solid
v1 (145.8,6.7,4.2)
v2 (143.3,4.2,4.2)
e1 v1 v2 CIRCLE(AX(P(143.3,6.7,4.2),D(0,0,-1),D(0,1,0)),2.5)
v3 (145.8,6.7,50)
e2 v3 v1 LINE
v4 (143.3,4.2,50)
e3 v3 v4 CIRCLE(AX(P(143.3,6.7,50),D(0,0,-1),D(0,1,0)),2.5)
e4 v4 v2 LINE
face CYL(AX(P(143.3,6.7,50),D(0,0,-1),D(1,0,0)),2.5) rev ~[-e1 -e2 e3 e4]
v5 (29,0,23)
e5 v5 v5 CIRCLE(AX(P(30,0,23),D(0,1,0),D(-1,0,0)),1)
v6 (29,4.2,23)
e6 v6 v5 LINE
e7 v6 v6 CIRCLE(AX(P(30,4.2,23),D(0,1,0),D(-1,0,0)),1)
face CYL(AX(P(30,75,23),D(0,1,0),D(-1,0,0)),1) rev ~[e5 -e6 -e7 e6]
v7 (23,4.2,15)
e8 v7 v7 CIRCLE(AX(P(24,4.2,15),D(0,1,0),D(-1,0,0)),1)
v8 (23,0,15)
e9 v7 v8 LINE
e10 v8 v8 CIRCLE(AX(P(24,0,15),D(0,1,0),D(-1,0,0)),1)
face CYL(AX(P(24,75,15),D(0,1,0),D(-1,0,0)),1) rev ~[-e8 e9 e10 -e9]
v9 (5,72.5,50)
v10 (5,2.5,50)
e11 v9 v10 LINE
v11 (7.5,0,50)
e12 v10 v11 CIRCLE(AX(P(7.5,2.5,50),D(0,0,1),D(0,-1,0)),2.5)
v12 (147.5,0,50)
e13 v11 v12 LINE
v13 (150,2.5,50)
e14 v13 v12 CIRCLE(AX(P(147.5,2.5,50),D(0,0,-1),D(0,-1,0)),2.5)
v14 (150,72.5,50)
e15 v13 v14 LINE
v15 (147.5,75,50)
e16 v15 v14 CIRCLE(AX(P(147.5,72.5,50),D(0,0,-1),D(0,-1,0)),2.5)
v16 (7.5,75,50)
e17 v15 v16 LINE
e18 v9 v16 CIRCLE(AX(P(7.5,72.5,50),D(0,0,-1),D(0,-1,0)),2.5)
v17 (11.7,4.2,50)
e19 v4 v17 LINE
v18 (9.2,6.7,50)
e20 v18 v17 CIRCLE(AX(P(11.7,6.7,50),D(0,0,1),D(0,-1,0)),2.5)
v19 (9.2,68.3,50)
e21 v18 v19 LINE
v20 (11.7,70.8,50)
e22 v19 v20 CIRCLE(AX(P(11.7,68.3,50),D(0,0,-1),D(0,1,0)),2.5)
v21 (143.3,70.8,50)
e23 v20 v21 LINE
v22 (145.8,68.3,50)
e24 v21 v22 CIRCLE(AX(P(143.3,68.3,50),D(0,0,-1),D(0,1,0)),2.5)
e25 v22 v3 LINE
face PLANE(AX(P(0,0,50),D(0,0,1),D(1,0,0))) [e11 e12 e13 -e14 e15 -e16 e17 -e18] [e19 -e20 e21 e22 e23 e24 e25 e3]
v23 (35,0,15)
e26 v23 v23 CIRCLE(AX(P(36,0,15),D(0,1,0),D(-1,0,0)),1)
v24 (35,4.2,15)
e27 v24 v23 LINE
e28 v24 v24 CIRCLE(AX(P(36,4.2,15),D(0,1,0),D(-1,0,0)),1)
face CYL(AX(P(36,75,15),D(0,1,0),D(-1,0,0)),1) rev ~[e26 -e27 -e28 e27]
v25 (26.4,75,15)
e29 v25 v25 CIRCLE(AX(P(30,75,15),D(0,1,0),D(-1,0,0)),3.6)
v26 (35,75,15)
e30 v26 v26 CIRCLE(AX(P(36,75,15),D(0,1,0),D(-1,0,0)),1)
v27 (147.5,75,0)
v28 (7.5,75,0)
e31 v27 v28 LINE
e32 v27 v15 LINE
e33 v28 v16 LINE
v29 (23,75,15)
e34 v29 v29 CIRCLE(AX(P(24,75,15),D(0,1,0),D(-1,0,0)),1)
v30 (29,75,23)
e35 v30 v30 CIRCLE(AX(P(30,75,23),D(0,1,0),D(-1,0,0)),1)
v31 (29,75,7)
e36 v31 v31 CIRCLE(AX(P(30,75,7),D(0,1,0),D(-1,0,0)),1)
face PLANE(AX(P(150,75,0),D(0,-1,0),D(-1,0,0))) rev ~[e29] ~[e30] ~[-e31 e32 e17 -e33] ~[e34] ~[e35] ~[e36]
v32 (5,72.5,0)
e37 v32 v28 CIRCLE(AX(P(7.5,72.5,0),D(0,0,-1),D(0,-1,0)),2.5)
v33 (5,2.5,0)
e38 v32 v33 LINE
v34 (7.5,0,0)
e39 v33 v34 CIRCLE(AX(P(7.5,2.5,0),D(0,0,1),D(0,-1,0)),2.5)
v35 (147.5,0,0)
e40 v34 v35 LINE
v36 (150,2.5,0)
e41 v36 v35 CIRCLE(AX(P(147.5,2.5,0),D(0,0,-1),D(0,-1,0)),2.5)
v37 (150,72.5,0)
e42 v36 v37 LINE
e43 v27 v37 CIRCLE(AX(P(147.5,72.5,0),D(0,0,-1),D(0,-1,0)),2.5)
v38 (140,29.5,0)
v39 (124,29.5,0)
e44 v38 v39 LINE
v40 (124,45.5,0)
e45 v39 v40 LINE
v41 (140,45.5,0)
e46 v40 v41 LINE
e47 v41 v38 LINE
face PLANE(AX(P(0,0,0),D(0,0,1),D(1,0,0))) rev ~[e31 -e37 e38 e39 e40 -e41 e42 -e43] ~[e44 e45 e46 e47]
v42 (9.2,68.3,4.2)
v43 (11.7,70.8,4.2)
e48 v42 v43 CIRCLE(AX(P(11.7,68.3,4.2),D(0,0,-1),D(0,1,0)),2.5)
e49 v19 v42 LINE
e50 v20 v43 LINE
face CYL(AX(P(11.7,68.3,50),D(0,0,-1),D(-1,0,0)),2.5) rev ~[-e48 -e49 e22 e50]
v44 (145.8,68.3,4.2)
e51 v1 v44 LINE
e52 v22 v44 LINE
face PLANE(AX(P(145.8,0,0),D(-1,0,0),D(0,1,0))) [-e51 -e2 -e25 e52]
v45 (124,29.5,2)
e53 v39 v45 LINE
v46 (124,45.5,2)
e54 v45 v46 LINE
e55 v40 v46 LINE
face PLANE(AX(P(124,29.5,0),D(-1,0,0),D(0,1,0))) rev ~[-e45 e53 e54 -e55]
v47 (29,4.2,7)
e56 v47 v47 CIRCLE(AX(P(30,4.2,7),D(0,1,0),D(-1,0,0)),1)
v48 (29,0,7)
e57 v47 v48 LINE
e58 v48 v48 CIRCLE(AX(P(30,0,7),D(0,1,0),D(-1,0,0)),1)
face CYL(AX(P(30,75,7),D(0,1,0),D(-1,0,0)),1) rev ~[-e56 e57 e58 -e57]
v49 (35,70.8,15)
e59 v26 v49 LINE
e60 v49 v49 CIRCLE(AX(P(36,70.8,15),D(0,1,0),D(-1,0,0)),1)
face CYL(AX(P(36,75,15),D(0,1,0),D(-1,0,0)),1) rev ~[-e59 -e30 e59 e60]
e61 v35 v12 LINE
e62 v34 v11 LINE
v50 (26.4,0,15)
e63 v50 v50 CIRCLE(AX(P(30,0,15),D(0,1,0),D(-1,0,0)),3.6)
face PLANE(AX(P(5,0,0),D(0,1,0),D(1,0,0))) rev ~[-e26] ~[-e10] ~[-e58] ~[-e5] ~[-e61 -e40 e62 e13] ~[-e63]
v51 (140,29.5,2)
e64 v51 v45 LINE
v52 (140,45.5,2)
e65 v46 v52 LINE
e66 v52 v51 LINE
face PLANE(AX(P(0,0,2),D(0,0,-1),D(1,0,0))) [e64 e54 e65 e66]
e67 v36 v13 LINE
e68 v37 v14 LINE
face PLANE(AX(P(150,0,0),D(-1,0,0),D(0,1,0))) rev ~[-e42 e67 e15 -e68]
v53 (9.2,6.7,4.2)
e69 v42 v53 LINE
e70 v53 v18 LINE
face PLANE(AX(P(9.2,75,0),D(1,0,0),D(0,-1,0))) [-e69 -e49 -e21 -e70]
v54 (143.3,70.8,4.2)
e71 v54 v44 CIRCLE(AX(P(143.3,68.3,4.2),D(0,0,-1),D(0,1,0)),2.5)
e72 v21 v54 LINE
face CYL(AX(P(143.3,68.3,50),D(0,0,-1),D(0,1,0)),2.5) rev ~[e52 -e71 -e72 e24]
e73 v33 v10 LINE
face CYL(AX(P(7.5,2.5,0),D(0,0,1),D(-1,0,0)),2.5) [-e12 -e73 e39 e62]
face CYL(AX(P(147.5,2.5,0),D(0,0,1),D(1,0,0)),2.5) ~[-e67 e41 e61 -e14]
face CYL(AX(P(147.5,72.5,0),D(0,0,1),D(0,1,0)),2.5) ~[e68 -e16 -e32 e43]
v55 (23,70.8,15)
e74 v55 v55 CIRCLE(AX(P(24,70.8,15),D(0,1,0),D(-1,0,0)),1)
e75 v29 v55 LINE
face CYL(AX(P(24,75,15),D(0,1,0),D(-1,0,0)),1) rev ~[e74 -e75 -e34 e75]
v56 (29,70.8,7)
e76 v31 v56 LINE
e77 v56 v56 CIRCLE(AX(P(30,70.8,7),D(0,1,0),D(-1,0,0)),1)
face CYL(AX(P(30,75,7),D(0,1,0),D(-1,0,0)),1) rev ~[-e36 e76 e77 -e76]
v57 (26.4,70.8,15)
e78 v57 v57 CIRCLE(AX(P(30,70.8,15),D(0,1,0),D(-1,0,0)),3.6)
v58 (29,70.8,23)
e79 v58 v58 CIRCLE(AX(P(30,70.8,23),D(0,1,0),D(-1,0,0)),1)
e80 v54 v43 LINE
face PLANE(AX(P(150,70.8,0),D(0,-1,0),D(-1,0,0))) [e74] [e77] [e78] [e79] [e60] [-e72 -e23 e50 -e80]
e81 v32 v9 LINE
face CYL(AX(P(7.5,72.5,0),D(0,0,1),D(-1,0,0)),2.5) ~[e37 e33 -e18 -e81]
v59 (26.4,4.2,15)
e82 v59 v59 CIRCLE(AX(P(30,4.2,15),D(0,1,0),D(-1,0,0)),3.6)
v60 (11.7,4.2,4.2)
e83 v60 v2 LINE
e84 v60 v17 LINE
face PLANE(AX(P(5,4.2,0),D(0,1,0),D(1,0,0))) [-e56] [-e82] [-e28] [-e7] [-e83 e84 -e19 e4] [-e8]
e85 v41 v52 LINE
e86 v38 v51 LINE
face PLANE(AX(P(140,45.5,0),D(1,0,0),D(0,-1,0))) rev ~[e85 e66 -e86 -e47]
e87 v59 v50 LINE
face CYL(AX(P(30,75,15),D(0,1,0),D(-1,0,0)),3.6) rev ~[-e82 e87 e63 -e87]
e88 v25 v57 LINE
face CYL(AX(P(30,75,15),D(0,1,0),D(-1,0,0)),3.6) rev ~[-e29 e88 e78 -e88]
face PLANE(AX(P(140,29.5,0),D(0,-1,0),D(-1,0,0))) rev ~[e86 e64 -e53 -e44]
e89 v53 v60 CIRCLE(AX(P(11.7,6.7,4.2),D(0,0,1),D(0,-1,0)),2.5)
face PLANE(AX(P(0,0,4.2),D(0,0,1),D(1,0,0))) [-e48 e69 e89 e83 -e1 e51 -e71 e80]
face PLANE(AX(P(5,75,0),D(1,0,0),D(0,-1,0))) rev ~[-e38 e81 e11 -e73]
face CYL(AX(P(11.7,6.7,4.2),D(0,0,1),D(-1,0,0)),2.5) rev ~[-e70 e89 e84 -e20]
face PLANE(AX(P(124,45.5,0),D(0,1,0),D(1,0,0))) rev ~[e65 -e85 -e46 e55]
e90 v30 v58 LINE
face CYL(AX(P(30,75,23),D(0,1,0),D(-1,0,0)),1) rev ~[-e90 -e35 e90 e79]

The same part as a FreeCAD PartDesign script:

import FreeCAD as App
import Part
import Sketcher

V = App.Vector


def edges_at(feature, points):
    """Names of the edges that pass closest to the given points."""
    edges = feature.Shape.Edges
    near = lambda p: min(range(len(edges)), key=lambda i: edges[i].distToShape(Part.Vertex(*p))[0])
    return sorted({f"Edge{near(p) + 1}" for p in points})


def faces_at(feature, points):
    """Names of the faces that lie closest to the given points."""
    faces = feature.Shape.Faces
    near = lambda p: min(range(len(faces)), key=lambda i: faces[i].distToShape(Part.Vertex(*p))[0])
    return sorted({f"Face{near(p) + 1}" for p in points})


def add_polygon(sketch, points):
    """Adds a closed chain of lines whose ends are joined by coincident constraints."""
    first, n = sketch.GeometryCount, len(points)
    for a, b in zip(points, points[1:] + points[:1]):
        sketch.addGeometry(Part.LineSegment(App.Vector(*a, 0), App.Vector(*b, 0)), False)
    for i in range(n):
        sketch.addConstraint(Sketcher.Constraint("Coincident", first + i, 2, first + (i + 1) % n, 1))

doc = App.newDocument("Part")
body = doc.addObject("PartDesign::Body", "Body")

# Sketch on XY plane
sketch1 = body.newObject("Sketcher::SketchObject", "Sketch")
sketch1.AttachmentSupport = (doc.getObject("XY_Plane"), [""])
sketch1.MapMode = "FlatFace"
add_polygon(sketch1, [(5, 75), (5, 0), (150, 0), (150, 75)])  # lines 0-3
sketch1.addConstraint(Sketcher.Constraint("Vertical", 0))
sketch1.addConstraint(Sketcher.Constraint("Horizontal", 1))
sketch1.addConstraint(Sketcher.Constraint("Vertical", 2))
sketch1.addConstraint(Sketcher.Constraint("Horizontal", 3))
sketch1.addConstraint(Sketcher.Constraint("PointOnObject", 0, 2, -1))
sketch1.addConstraint(Sketcher.Constraint("DistanceX", 1, 1, 1, 2, 145.0))
sketch1.addConstraint(Sketcher.Constraint("DistanceY", 0, 2, 0, 1, 75.0))
sketch1.addConstraint(Sketcher.Constraint("DistanceX", -1, 1, 0, 2, 5.0))
pad1 = body.newObject("PartDesign::Pad", "Pad")
pad1.Profile = sketch1
pad1.Length = 50
doc.recompute()

thickness = body.newObject("PartDesign::Thickness", "Thickness")
thickness.Base = (pad1, faces_at(pad1, [(53.333, 50, 50)]))
thickness.Value = 4.2
thickness.Reversed = True
thickness.Join = "Intersection"
doc.recompute()

fillet = body.newObject("PartDesign::Fillet", "Fillet")
fillet.Base = (thickness, edges_at(thickness, [(5, 0, 25)]))
fillet.Radius = 2.5
doc.recompute()

fillet2 = body.newObject("PartDesign::Fillet", "Fillet001")
fillet2.Base = (fillet, edges_at(fillet, [(9.2, 4.2, 27.1)]))
fillet2.Radius = 2.5
doc.recompute()

fillet3 = body.newObject("PartDesign::Fillet", "Fillet002")
fillet3.Base = (fillet2, edges_at(fillet2, [(9.2, 70.8, 27.1)]))
fillet3.Radius = 2.5
doc.recompute()

fillet4 = body.newObject("PartDesign::Fillet", "Fillet003")
fillet4.Base = (fillet3, edges_at(fillet3, [(5, 75, 25)]))
fillet4.Radius = 2.5
doc.recompute()

fillet5 = body.newObject("PartDesign::Fillet", "Fillet004")
fillet5.Base = (fillet4, edges_at(fillet4, [(150, 75, 25)]))
fillet5.Radius = 2.5
doc.recompute()

fillet6 = body.newObject("PartDesign::Fillet", "Fillet005")
fillet6.Base = (fillet5, edges_at(fillet5, [(145.8, 70.8, 27.1)]))
fillet6.Radius = 2.5
doc.recompute()

fillet7 = body.newObject("PartDesign::Fillet", "Fillet006")
fillet7.Base = (fillet6, edges_at(fillet6, [(145.8, 4.2, 27.1)]))
fillet7.Radius = 2.5
doc.recompute()

fillet8 = body.newObject("PartDesign::Fillet", "Fillet007")
fillet8.Base = (fillet7, edges_at(fillet7, [(150, 0, 25)]))
fillet8.Radius = 2.5

# Sketch on XZ plane
sketch2 = body.newObject("Sketcher::SketchObject", "Sketch001")
sketch2.AttachmentSupport = (doc.getObject("XZ_Plane"), [""])
sketch2.MapMode = "FlatFace"
sketch2.AttachmentOffset = App.Placement(V(0, 0, -75), App.Rotation())
sketch2.addGeometry(Part.Circle(V(30, 7, 0), V(0, 0, 1), 1), False)
sketch2.addConstraint(Sketcher.Constraint("Diameter", 0, 2.0))
sketch2.addConstraint(Sketcher.Constraint("DistanceX", -1, 1, 0, 3, 30.0))
sketch2.addConstraint(Sketcher.Constraint("DistanceY", -1, 1, 0, 3, 7.0))
pocket1 = body.newObject("PartDesign::Pocket", "Pocket")
pocket1.Profile = sketch2
pocket1.Length = 300
pocket1.Reversed = True

# Sketch on XZ plane
sketch3 = body.newObject("Sketcher::SketchObject", "Sketch002")
sketch3.AttachmentSupport = (doc.getObject("XZ_Plane"), [""])
sketch3.MapMode = "FlatFace"
sketch3.AttachmentOffset = App.Placement(V(0, 0, -75), App.Rotation())
sketch3.addGeometry(Part.Circle(V(30, 23, 0), V(0, 0, 1), 1), False)
sketch3.addConstraint(Sketcher.Constraint("Diameter", 0, 2.0))
sketch3.addConstraint(Sketcher.Constraint("DistanceX", -1, 1, 0, 3, 30.0))
sketch3.addConstraint(Sketcher.Constraint("DistanceY", -1, 1, 0, 3, 23.0))
pocket2 = body.newObject("PartDesign::Pocket", "Pocket001")
pocket2.Profile = sketch3
pocket2.Length = 300
pocket2.Reversed = True

# Sketch on XZ plane
sketch4 = body.newObject("Sketcher::SketchObject", "Sketch003")
sketch4.AttachmentSupport = (doc.getObject("XZ_Plane"), [""])
sketch4.MapMode = "FlatFace"
sketch4.AttachmentOffset = App.Placement(V(0, 0, -75), App.Rotation())
sketch4.addGeometry(Part.Circle(V(24, 15, 0), V(0, 0, 1), 1), False)
sketch4.addConstraint(Sketcher.Constraint("Diameter", 0, 2.0))
sketch4.addConstraint(Sketcher.Constraint("DistanceX", -1, 1, 0, 3, 24.0))
sketch4.addConstraint(Sketcher.Constraint("DistanceY", -1, 1, 0, 3, 15.0))
pocket3 = body.newObject("PartDesign::Pocket", "Pocket002")
pocket3.Profile = sketch4
pocket3.Length = 300
pocket3.Reversed = True

# Sketch on XZ plane
sketch5 = body.newObject("Sketcher::SketchObject", "Sketch004")
sketch5.AttachmentSupport = (doc.getObject("XZ_Plane"), [""])
sketch5.MapMode = "FlatFace"
sketch5.AttachmentOffset = App.Placement(V(0, 0, -75), App.Rotation())
sketch5.addGeometry(Part.Circle(V(36, 15, 0), V(0, 0, 1), 1), False)
sketch5.addConstraint(Sketcher.Constraint("Diameter", 0, 2.0))
sketch5.addConstraint(Sketcher.Constraint("DistanceX", -1, 1, 0, 3, 36.0))
sketch5.addConstraint(Sketcher.Constraint("DistanceY", -1, 1, 0, 3, 15.0))
pocket4 = body.newObject("PartDesign::Pocket", "Pocket003")
pocket4.Profile = sketch5
pocket4.Length = 300
pocket4.Reversed = True

# Sketch on XZ plane
sketch6 = body.newObject("Sketcher::SketchObject", "Sketch005")
sketch6.AttachmentSupport = (doc.getObject("XZ_Plane"), [""])
sketch6.MapMode = "FlatFace"
sketch6.AttachmentOffset = App.Placement(V(0, 0, -75), App.Rotation())
sketch6.addGeometry(Part.Circle(V(30, 15, 0), V(0, 0, 1), 3.6), False)
sketch6.addConstraint(Sketcher.Constraint("Diameter", 0, 7.2))
sketch6.addConstraint(Sketcher.Constraint("DistanceX", -1, 1, 0, 3, 30.0))
sketch6.addConstraint(Sketcher.Constraint("DistanceY", -1, 1, 0, 3, 15.0))
pocket5 = body.newObject("PartDesign::Pocket", "Pocket004")
pocket5.Profile = sketch6
pocket5.Length = 300
pocket5.Reversed = True

# Sketch on XY plane
sketch7 = body.newObject("Sketcher::SketchObject", "Sketch006")
sketch7.AttachmentSupport = (doc.getObject("XY_Plane"), [""])
sketch7.MapMode = "FlatFace"
add_polygon(sketch7, [(140, 46), (140, 30), (124, 30), (124, 46)])  # lines 0-3
sketch7.addConstraint(Sketcher.Constraint("Vertical", 0))
sketch7.addConstraint(Sketcher.Constraint("Horizontal", 1))
sketch7.addConstraint(Sketcher.Constraint("Vertical", 2))
sketch7.addConstraint(Sketcher.Constraint("Horizontal", 3))
sketch7.addConstraint(Sketcher.Constraint("Equal", 3, 0))
sketch7.addConstraint(Sketcher.Constraint("DistanceX", 1, 2, 1, 1, 16.0))
sketch7.addConstraint(Sketcher.Constraint("DistanceX", -1, 1, 0, 2, 140.0))
sketch7.addConstraint(Sketcher.Constraint("DistanceY", -1, 1, 0, 2, 29.5))
pocket6 = body.newObject("PartDesign::Pocket", "Pocket005")
pocket6.Profile = sketch7
pocket6.Length = 2
pocket6.Reversed = True

doc.recompute()
